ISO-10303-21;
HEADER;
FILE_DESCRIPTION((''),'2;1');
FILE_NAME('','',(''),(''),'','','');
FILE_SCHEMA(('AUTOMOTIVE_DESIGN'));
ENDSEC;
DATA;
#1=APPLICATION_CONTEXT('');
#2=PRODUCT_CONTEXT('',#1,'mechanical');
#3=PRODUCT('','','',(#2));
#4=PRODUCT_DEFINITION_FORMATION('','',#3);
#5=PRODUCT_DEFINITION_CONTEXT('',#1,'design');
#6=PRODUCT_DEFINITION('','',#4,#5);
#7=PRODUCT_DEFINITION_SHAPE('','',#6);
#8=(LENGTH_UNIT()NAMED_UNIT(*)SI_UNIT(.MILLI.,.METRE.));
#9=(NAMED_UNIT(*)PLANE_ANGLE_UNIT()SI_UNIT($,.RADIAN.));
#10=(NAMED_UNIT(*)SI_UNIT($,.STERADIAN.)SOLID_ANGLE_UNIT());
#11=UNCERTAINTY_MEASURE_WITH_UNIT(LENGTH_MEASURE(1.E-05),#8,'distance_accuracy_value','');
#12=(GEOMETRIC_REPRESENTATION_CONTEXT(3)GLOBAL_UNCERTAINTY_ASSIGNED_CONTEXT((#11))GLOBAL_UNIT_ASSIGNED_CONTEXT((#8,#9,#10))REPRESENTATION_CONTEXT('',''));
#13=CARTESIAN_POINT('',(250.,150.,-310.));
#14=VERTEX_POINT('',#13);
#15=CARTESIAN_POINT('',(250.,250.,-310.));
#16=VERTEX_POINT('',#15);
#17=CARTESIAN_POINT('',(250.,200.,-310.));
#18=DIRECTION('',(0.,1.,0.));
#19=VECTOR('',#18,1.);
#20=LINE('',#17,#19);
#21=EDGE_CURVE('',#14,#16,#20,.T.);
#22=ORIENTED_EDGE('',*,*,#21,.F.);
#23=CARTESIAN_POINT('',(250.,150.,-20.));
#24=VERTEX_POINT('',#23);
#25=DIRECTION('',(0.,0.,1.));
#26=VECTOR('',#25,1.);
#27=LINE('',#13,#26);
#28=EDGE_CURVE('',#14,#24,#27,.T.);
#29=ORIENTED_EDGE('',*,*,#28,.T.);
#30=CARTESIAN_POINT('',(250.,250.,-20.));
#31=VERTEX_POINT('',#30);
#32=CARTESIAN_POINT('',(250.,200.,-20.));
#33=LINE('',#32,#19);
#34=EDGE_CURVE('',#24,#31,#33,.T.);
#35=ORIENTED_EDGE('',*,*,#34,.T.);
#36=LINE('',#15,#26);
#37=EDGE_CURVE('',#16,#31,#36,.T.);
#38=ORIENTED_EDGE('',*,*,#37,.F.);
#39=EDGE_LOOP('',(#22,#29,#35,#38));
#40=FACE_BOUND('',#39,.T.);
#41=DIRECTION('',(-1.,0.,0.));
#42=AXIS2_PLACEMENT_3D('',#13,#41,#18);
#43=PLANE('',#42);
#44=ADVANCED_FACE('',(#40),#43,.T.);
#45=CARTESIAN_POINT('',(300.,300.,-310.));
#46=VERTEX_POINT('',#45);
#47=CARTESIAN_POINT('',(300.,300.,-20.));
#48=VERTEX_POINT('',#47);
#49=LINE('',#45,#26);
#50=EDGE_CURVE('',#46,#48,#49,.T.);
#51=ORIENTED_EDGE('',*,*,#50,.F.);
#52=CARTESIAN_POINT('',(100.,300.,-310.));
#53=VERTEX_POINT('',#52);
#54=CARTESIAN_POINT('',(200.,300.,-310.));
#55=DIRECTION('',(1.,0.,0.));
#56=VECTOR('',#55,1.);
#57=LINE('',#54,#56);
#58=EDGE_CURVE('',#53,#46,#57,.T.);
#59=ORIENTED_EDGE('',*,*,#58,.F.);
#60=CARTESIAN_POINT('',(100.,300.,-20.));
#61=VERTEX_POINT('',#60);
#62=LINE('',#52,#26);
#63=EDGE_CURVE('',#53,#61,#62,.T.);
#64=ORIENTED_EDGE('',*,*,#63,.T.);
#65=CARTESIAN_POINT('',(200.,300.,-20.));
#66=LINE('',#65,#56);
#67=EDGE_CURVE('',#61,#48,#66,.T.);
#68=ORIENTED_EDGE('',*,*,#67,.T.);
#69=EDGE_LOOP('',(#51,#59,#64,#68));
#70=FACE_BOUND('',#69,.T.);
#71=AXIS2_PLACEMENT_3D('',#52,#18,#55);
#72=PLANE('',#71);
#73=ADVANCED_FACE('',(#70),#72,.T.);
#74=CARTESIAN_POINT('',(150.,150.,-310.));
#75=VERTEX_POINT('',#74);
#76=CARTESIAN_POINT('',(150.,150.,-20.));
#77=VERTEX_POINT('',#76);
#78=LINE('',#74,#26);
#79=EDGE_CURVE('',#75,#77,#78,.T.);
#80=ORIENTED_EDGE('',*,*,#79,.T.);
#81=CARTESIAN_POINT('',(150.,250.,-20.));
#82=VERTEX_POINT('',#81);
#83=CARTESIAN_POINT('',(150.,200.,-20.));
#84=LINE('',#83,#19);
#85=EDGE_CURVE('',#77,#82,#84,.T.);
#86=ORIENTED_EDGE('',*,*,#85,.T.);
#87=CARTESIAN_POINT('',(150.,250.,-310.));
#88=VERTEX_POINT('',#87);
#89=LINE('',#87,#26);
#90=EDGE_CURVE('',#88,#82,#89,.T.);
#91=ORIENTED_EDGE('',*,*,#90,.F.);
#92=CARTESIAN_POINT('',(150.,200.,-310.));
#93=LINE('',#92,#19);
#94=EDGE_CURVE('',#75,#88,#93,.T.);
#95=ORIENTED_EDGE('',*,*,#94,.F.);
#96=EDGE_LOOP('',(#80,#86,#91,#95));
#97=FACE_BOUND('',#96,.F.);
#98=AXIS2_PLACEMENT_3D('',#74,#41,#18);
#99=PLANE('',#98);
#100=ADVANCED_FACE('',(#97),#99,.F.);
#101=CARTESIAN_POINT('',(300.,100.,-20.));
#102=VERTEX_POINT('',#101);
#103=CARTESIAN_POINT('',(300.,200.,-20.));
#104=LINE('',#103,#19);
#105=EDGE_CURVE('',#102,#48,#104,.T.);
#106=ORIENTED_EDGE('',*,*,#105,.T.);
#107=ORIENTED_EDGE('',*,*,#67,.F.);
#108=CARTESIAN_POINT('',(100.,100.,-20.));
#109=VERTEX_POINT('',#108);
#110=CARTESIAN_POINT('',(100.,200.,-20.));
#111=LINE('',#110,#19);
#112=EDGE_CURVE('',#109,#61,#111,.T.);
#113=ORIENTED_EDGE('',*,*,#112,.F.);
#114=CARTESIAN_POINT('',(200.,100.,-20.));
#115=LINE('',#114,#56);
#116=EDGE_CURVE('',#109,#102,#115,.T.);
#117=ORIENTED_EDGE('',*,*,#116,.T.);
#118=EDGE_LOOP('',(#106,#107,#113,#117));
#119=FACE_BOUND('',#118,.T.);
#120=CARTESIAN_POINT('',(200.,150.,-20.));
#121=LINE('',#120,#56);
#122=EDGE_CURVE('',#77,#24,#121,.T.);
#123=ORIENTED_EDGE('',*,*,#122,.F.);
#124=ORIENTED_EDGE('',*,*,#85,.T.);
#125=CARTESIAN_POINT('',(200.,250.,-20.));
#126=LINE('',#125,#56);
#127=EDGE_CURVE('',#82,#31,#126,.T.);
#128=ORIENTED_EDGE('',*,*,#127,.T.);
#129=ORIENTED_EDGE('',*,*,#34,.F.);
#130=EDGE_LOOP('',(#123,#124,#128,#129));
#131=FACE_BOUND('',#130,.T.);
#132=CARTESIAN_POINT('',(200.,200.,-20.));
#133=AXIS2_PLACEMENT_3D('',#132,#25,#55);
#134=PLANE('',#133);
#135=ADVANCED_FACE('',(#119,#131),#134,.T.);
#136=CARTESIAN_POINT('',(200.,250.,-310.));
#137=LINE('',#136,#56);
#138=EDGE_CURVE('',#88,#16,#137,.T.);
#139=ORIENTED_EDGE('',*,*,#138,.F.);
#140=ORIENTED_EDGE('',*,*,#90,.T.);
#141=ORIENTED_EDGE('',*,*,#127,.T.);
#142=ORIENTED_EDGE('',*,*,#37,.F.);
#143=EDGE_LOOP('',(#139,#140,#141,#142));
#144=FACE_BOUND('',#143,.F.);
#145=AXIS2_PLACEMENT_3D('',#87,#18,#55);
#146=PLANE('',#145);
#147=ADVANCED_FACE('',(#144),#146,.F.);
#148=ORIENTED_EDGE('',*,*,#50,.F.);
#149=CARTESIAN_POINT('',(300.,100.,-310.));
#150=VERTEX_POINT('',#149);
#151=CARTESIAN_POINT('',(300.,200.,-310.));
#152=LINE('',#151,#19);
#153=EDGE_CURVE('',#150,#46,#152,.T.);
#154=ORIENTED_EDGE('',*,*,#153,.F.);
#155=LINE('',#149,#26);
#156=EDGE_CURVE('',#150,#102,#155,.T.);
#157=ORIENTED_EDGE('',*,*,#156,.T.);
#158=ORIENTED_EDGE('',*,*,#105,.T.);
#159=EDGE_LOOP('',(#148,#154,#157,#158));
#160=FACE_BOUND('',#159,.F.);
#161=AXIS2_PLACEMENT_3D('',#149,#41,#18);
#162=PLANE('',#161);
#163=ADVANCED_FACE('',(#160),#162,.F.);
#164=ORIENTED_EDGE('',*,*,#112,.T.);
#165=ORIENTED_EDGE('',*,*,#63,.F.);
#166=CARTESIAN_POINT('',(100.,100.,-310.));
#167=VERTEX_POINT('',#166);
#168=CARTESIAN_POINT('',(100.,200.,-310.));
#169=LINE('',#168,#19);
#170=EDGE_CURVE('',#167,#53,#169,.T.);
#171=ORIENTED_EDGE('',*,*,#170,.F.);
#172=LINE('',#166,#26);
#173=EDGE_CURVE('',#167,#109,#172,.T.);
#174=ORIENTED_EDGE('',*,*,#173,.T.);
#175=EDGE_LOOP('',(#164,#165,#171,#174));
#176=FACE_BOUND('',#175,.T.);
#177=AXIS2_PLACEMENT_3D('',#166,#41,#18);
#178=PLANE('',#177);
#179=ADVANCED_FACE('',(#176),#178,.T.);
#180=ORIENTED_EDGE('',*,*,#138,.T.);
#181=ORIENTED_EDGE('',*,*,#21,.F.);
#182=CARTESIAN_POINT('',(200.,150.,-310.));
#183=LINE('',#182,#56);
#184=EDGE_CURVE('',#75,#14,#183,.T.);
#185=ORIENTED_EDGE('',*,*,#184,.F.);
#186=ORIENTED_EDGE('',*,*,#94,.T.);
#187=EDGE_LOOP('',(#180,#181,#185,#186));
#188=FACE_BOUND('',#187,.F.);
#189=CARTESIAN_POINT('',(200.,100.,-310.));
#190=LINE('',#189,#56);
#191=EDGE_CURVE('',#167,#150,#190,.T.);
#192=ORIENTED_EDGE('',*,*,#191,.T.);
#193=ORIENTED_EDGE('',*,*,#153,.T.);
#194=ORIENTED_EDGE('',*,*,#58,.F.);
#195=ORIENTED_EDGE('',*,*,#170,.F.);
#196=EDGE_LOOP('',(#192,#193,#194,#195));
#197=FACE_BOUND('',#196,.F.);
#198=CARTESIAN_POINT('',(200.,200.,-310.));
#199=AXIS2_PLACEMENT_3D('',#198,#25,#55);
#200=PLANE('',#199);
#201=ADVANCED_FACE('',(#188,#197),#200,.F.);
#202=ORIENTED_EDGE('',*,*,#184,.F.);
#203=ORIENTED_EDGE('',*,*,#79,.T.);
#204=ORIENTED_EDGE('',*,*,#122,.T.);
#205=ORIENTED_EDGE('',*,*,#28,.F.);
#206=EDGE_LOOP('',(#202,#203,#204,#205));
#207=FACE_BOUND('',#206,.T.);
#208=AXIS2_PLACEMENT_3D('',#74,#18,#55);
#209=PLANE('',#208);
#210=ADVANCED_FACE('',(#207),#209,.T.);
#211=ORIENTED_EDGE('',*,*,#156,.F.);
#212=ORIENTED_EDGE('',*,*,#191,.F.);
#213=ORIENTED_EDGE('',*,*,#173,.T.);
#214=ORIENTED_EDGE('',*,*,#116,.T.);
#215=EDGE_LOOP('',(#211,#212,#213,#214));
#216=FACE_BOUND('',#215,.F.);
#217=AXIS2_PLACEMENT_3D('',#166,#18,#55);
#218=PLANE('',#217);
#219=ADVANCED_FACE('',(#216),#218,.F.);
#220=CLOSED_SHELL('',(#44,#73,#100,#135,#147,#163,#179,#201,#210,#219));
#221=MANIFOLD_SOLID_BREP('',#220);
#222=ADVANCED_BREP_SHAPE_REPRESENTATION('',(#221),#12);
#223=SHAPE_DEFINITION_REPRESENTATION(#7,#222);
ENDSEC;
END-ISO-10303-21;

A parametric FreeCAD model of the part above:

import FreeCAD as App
import Part
import Sketcher

V = App.Vector
Q = App.Units.Quantity

doc = App.newDocument("Part")
body = doc.addObject("PartDesign::Body", "Body")

sketch1 = doc.addObject("Sketcher::SketchObject", "Sketch")
body.addObject(sketch1)
sketch1.AttachmentSupport = (doc.XY_Plane, [""])
sketch1.MapMode = "FlatFace"
sketch1.AttachmentOffset = App.Placement(V(0, 0, -310), App.Rotation())
sketch1.addGeometry([
    Part.LineSegment(V(150, 250, 0), V(150, 150, 0)),
    Part.LineSegment(V(150, 150, 0), V(250, 150, 0)),
    Part.LineSegment(V(250, 150, 0), V(250, 250, 0)),
    Part.LineSegment(V(250, 250, 0), V(150, 250, 0)),
], False)
sketch1.addConstraint([
    Sketcher.Constraint("Coincident", 0, 2, 1, 1),
    Sketcher.Constraint("Coincident", 1, 2, 2, 1),
    Sketcher.Constraint("Coincident", 2, 2, 3, 1),
    Sketcher.Constraint("Coincident", 3, 2, 0, 1),
    Sketcher.Constraint("Vertical", 0),
    Sketcher.Constraint("Horizontal", 1),
    Sketcher.Constraint("Vertical", 2),
    Sketcher.Constraint("Horizontal", 3),
    Sketcher.Constraint("Equal", 3, 0),
    Sketcher.Constraint("DistanceX", 1, 1, 1, 2, Q("100 mm")),
    Sketcher.Constraint("DistanceX", -1, 1, 0, 2, Q("150 mm")),
    Sketcher.Constraint("DistanceY", -1, 1, 0, 2, Q("150 mm")),
])
pad1 = doc.addObject("PartDesign::Pad", "Pad")
body.addObject(pad1)
pad1.Profile = sketch1
pad1.Length = 290
body2 = doc.addObject("PartDesign::Body", "Body001")

sketch2 = doc.addObject("Sketcher::SketchObject", "Sketch001")
body2.addObject(sketch2)
sketch2.AttachmentSupport = (doc.getObject("XY_Plane001"), [""])
sketch2.MapMode = "FlatFace"
sketch2.AttachmentOffset = App.Placement(V(0, 0, -310), App.Rotation())
sketch2.addGeometry([
    Part.LineSegment(V(100, 300, 0), V(100, 100, 0)),
    Part.LineSegment(V(100, 100, 0), V(300, 100, 0)),
    Part.LineSegment(V(300, 100, 0), V(300, 300, 0)),
    Part.LineSegment(V(300, 300, 0), V(100, 300, 0)),
], False)
sketch2.addConstraint([
    Sketcher.Constraint("Coincident", 0, 2, 1, 1),
    Sketcher.Constraint("Coincident", 1, 2, 2, 1),
    Sketcher.Constraint("Coincident", 2, 2, 3, 1),
    Sketcher.Constraint("Coincident", 3, 2, 0, 1),
    Sketcher.Constraint("Vertical", 0),
    Sketcher.Constraint("Horizontal", 1),
    Sketcher.Constraint("Vertical", 2),
    Sketcher.Constraint("Horizontal", 3),
    Sketcher.Constraint("Equal", 3, 0),
    Sketcher.Constraint("DistanceX", 1, 1, 1, 2, Q("200 mm")),
    Sketcher.Constraint("DistanceX", -1, 1, 0, 2, Q("100 mm")),
    Sketcher.Constraint("DistanceY", -1, 1, 0, 2, Q("100 mm")),
])
pad2 = doc.addObject("PartDesign::Pad", "Pad001")
body2.addObject(pad2)
pad2.Profile = sketch2
pad2.Length = 290
doc.recompute()

boolean = doc.addObject("PartDesign::Boolean", "Boolean")
body2.addObject(boolean)
boolean.Type = "Cut"
boolean.addObjects([body])

doc.recompute()
